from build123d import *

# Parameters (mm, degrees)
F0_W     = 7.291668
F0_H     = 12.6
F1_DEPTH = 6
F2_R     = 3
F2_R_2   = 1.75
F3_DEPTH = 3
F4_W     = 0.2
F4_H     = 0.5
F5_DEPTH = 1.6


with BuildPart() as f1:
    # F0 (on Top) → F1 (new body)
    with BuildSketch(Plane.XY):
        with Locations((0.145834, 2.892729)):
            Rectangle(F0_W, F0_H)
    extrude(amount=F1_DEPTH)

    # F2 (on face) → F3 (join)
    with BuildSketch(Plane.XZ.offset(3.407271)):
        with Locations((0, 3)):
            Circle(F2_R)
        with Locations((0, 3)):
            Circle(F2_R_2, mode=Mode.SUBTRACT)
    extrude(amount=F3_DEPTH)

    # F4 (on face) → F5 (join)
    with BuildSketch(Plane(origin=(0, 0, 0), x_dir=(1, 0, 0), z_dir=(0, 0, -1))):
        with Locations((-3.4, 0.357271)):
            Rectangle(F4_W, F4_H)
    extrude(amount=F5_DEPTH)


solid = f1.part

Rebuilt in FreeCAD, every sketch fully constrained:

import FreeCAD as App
import Part
import Sketcher

V = App.Vector
Q = App.Units.Quantity


def add_polygon(sketch, points):
    """Adds a closed chain of lines whose ends are joined by coincident constraints."""
    first, n = sketch.GeometryCount, len(points)
    for a, b in zip(points, points[1:] + points[:1]):
        sketch.addGeometry(Part.LineSegment(App.Vector(*a, 0), App.Vector(*b, 0)), False)
    for i in range(n):
        sketch.addConstraint(Sketcher.Constraint("Coincident", first + i, 2, first + (i + 1) % n, 1))

doc = App.newDocument("Part")
body = doc.addObject("PartDesign::Body", "Body")

# Sketch on XY plane
sketch1 = body.newObject("Sketcher::SketchObject", "Sketch")
sketch1.AttachmentSupport = (doc.getObject("XY_Plane"), [""])
sketch1.MapMode = "FlatFace"
add_polygon(sketch1, [(-3.5, 9.192729), (-3.5, -3.407271), (3.791668, -3.407271), (3.791668, 9.192729)])  # lines 0-3
sketch1.addConstraint([
    Sketcher.Constraint("Vertical", 0),
    Sketcher.Constraint("Horizontal", 1),
    Sketcher.Constraint("Vertical", 2),
    Sketcher.Constraint("Horizontal", 3),
    Sketcher.Constraint("DistanceY", 0, 2, 0, 1, Q("12.6 mm")),
    Sketcher.Constraint("DistanceX", 0, 2, -1, 1, Q("3.5 mm")),
    Sketcher.Constraint("DistanceX", 1, 1, 1, 2, Q("7.291668 mm")),
    Sketcher.Constraint("DistanceY", 0, 2, -1, 1, Q("3.407271 mm")),
])
pad1 = body.newObject("PartDesign::Pad", "Pad")
pad1.Profile = sketch1
pad1.Length = 6

# Sketch on XZ plane
sketch2 = body.newObject("Sketcher::SketchObject", "Sketch001")
sketch2.AttachmentSupport = (doc.getObject("XZ_Plane"), [""])
sketch2.MapMode = "FlatFace"
sketch2.AttachmentOffset = App.Placement(V(0, 0, 3.407271), App.Rotation())
sketch2.addGeometry([
    Part.Circle(V(0, 3, 0), V(0, 0, 1), 3),
    Part.Circle(V(0, 3, 0), V(0, 0, 1), 1.75),
], False)
sketch2.addConstraint([
    Sketcher.Constraint("Coincident", 1, 3, 0, 3),
    Sketcher.Constraint("PointOnObject", 0, 3, -2),
    Sketcher.Constraint("Diameter", 0, Q("6 mm")),
    Sketcher.Constraint("Diameter", 1, Q("3.5 mm")),
    Sketcher.Constraint("DistanceY", -1, 1, 0, 3, Q("3 mm")),
])
pad2 = body.newObject("PartDesign::Pad", "Pad001")
pad2.Profile = sketch2
pad2.Length = 3

# Sketch on XY plane
sketch3 = body.newObject("Sketcher::SketchObject", "Sketch002")
sketch3.AttachmentSupport = (doc.getObject("XY_Plane"), [""])
sketch3.MapMode = "FlatFace"
add_polygon(sketch3, [(-3.5, -0.607271), (-3.5, -0.107271), (-3.3, -0.107271), (-3.3, -0.607271)])  # lines 0-3
sketch3.addConstraint([
    Sketcher.Constraint("Vertical", 0),
    Sketcher.Constraint("Horizontal", 1),
    Sketcher.Constraint("Vertical", 2),
    Sketcher.Constraint("Horizontal", 3),
    Sketcher.Constraint("DistanceX", 1, 1, 1, 2, Q("0.2 mm")),
    Sketcher.Constraint("DistanceY", 0, 1, 0, 2, Q("0.5 mm")),
    Sketcher.Constraint("DistanceX", 0, 2, -1, 1, Q("3.5 mm")),
    Sketcher.Constraint("DistanceY", 0, 2, -1, 1, Q("0.107271 mm")),
])
pad3 = body.newObject("PartDesign::Pad", "Pad002")
pad3.Profile = sketch3
pad3.Length = 1.6
pad3.Reversed = True

doc.recompute()
